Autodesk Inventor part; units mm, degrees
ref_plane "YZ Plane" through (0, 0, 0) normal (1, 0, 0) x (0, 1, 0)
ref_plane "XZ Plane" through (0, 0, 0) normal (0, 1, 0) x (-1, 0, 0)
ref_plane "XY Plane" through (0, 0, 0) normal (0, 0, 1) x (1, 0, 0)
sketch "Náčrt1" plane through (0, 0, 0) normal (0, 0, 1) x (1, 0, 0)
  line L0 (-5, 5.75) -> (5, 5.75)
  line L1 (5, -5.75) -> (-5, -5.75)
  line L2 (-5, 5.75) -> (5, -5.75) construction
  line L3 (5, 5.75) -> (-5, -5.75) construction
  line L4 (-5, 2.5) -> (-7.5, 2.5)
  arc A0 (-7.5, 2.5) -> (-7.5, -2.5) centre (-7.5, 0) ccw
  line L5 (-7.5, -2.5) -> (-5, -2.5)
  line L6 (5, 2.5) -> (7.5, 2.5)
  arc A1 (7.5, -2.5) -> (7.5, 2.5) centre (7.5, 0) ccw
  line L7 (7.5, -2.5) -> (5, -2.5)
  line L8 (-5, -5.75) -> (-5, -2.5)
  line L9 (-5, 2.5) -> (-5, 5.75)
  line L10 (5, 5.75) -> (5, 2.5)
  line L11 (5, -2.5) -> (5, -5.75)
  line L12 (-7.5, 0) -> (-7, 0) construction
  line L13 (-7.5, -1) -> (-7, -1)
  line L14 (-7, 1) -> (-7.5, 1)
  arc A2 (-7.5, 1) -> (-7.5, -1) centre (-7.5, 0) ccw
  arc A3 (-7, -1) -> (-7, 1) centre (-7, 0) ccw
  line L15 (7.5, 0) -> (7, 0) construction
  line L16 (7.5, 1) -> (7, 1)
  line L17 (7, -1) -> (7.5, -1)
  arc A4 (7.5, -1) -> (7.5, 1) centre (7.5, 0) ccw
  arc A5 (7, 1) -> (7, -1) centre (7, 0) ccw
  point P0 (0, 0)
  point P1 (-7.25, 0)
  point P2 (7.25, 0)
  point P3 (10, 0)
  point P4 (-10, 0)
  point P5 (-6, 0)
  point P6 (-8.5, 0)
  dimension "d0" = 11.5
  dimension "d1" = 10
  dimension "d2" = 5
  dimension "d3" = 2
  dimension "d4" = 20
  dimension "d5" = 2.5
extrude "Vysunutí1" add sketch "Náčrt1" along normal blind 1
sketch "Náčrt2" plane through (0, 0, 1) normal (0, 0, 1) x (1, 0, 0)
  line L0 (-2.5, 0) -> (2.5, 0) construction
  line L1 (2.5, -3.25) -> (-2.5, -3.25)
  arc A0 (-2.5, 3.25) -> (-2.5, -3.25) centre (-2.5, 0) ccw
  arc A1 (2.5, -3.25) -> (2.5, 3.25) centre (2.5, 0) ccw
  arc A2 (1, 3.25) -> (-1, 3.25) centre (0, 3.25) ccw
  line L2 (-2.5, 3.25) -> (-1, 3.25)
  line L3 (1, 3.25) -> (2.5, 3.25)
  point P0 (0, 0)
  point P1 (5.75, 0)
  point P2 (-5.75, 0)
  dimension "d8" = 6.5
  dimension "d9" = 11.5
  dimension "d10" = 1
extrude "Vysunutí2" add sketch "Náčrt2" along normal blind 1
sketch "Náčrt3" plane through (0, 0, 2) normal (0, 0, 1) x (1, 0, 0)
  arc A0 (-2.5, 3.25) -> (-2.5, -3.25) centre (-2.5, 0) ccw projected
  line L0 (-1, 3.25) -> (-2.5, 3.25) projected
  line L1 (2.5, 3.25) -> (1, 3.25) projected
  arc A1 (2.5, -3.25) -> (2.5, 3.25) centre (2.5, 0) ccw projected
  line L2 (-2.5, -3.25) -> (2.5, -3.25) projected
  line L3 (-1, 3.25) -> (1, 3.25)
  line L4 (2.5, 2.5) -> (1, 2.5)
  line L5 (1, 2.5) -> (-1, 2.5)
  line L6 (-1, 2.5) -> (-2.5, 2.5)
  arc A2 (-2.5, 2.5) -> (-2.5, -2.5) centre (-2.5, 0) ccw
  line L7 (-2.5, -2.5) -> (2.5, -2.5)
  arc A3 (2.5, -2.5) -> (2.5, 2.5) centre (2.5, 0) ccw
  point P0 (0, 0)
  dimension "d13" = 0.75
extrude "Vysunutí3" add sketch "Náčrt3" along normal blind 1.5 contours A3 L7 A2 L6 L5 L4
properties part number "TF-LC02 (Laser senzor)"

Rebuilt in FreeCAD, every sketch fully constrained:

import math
import FreeCAD as App
import Part
import Sketcher

V = App.Vector
Q = App.Units.Quantity

doc = App.newDocument("Part")
params = doc.addObject("Spreadsheet::Sheet", "Params")
for row, (alias, value) in enumerate([
    ("sketch1_radius", "1 mm"),
    ("sketch1_radius2", "2.5 mm"),
    ("sketch1_width", "10 mm"),
    ("sketch1_width2", "2.5 mm"),
    ("sketch1_height", "3.25 mm"),
    ("pad1_length", "1 mm"),
    ("sketch2_radius", "1 mm"),
    ("sketch2_radius2", "3.25 mm"),
    ("sketch2_width", "5 mm"),
    ("pad2_length", "1 mm"),
    ("sketch3_radius", "2.5 mm"),
    ("sketch3_width", "5 mm"),
    ("pad3_length", "1.5 mm"),
], start=1):
    params.set(f"A{row}", alias)
    params.set(f"B{row}", "=" + value)
    params.setAlias(f"B{row}", alias)

body = doc.addObject("PartDesign::Body", "Body")

sketch1 = body.newObject("Sketcher::SketchObject", "Sketch")
sketch1.AttachmentSupport = (doc.getObject("XY_Plane"), [""])
sketch1.MapMode = "FlatFace"
sketch1.addGeometry(Part.LineSegment(V(5, 5.75, 0), V(-5, 5.75, 0)), False)
sketch1.addGeometry(Part.LineSegment(V(-5, 5.75, 0), V(-5, 2.5, 0)), False)
sketch1.addGeometry(Part.LineSegment(V(-5, 2.5, 0), V(-7.5, 2.5, 0)), False)
sketch1.addGeometry(Part.ArcOfCircle(Part.Circle(V(-7.5, 0, 0), V(0, 0, 1), 2.5), math.radians(90), math.radians(270)), False)
sketch1.addGeometry(Part.LineSegment(V(-7.5, -2.5, 0), V(-5, -2.5, 0)), False)
sketch1.addGeometry(Part.LineSegment(V(-5, -2.5, 0), V(-5, -5.75, 0)), False)
sketch1.addGeometry(Part.LineSegment(V(-5, -5.75, 0), V(5, -5.75, 0)), False)
sketch1.addGeometry(Part.LineSegment(V(5, -5.75, 0), V(5, -2.5, 0)), False)
sketch1.addGeometry(Part.LineSegment(V(5, -2.5, 0), V(7.5, -2.5, 0)), False)
sketch1.addGeometry(Part.ArcOfCircle(Part.Circle(V(7.5, 0, 0), V(0, 0, 1), 2.5), math.radians(-90), math.radians(90)), False)
sketch1.addGeometry(Part.LineSegment(V(7.5, 2.5, 0), V(5, 2.5, 0)), False)
sketch1.addGeometry(Part.LineSegment(V(5, 2.5, 0), V(5, 5.75, 0)), False)
sketch1.addGeometry(Part.LineSegment(V(-7, -1, 0), V(-7.5, -1, 0)), False)
sketch1.addGeometry(Part.ArcOfCircle(Part.Circle(V(-7.5, 0, 0), V(0, 0, 1), 1), math.radians(90), math.radians(270)), False)
sketch1.addGeometry(Part.LineSegment(V(-7.5, 1, 0), V(-7, 1, 0)), False)
sketch1.addGeometry(Part.ArcOfCircle(Part.Circle(V(-7, 0, 0), V(0, 0, 1), 1), math.radians(-90), math.radians(90)), False)
sketch1.addGeometry(Part.LineSegment(V(7, 1, 0), V(7.5, 1, 0)), False)
sketch1.addGeometry(Part.ArcOfCircle(Part.Circle(V(7.5, 0, 0), V(0, 0, 1), 1), math.radians(-90), math.radians(90)), False)
sketch1.addGeometry(Part.LineSegment(V(7.5, -1, 0), V(7, -1, 0)), False)
sketch1.addGeometry(Part.ArcOfCircle(Part.Circle(V(7, 0, 0), V(0, 0, 1), 1), math.radians(90), math.radians(270)), False)
sketch1.addConstraint(Sketcher.Constraint("Coincident", 0, 2, 1, 1))
sketch1.addConstraint(Sketcher.Constraint("Coincident", 1, 2, 2, 1))
sketch1.addConstraint(Sketcher.Constraint("Tangent", 2, 2, 3, 1))
sketch1.addConstraint(Sketcher.Constraint("Tangent", 3, 2, 4, 1))
sketch1.addConstraint(Sketcher.Constraint("Coincident", 4, 2, 5, 1))
sketch1.addConstraint(Sketcher.Constraint("Coincident", 5, 2, 6, 1))
sketch1.addConstraint(Sketcher.Constraint("Coincident", 6, 2, 7, 1))
sketch1.addConstraint(Sketcher.Constraint("Coincident", 7, 2, 8, 1))
sketch1.addConstraint(Sketcher.Constraint("Tangent", 8, 2, 9, 1))
sketch1.addConstraint(Sketcher.Constraint("Tangent", 9, 2, 10, 1))
sketch1.addConstraint(Sketcher.Constraint("Coincident", 10, 2, 11, 1))
sketch1.addConstraint(Sketcher.Constraint("Coincident", 11, 2, 0, 1))
sketch1.addConstraint(Sketcher.Constraint("Tangent", 12, 2, 13, 2))
sketch1.addConstraint(Sketcher.Constraint("Tangent", 13, 1, 14, 1))
sketch1.addConstraint(Sketcher.Constraint("Tangent", 14, 2, 15, 2))
sketch1.addConstraint(Sketcher.Constraint("Tangent", 15, 1, 12, 1))
sketch1.addConstraint(Sketcher.Constraint("Tangent", 16, 2, 17, 2))
sketch1.addConstraint(Sketcher.Constraint("Tangent", 17, 1, 18, 1))
sketch1.addConstraint(Sketcher.Constraint("Tangent", 18, 2, 19, 2))
sketch1.addConstraint(Sketcher.Constraint("Tangent", 19, 1, 16, 1))
sketch1.addConstraint(Sketcher.Constraint("Horizontal", 0))
sketch1.addConstraint(Sketcher.Constraint("Vertical", 1))
sketch1.addConstraint(Sketcher.Constraint("Horizontal", 2))
sketch1.addConstraint(Sketcher.Constraint("Horizontal", 4))
sketch1.addConstraint(Sketcher.Constraint("Vertical", 5))
sketch1.addConstraint(Sketcher.Constraint("Horizontal", 6))
sketch1.addConstraint(Sketcher.Constraint("Vertical", 7))
sketch1.addConstraint(Sketcher.Constraint("Horizontal", 8))
sketch1.addConstraint(Sketcher.Constraint("Horizontal", 10))
sketch1.addConstraint(Sketcher.Constraint("Vertical", 11))
sketch1.addConstraint(Sketcher.Constraint("Horizontal", 12))
sketch1.addConstraint(Sketcher.Constraint("Horizontal", 14))
sketch1.addConstraint(Sketcher.Constraint("Horizontal", 16))
sketch1.addConstraint(Sketcher.Constraint("Horizontal", 18))
sketch1.addConstraint(Sketcher.Constraint("Coincident", 13, 3, 3, 3))
sketch1.addConstraint(Sketcher.Constraint("Coincident", 17, 3, 9, 3))
sketch1.addConstraint(Sketcher.Constraint("Equal", 3, 9))
sketch1.addConstraint(Sketcher.Constraint("Equal", 15, 17))
sketch1.addConstraint(Sketcher.Constraint("Symmetric", 3, 3, 9, 3, -1, 1))
sketch1.addConstraint(Sketcher.Constraint("Symmetric", 0, 2, 6, 2, -1, 1))
sketch1.addConstraint(Sketcher.Constraint("Symmetric", 15, 3, 19, 3, -2))
sketch1.addConstraint(Sketcher.Constraint("Vertical", 1, 2, 4, 2))
sketch1.addConstraint(Sketcher.Constraint("Vertical", 7, 2, 10, 2))
sketch1.addConstraint(Sketcher.Constraint("Radius", 13, Q("1 mm")))
sketch1.addConstraint(Sketcher.Constraint("Radius", 3, Q("2.5 mm")))
sketch1.addConstraint(Sketcher.Constraint("DistanceX", 0, 2, 0, 1, Q("10 mm")))
sketch1.addConstraint(Sketcher.Constraint("DistanceX", 2, 2, 2, 1, Q("2.5 mm")))
sketch1.addConstraint(Sketcher.Constraint("DistanceX", 15, 3, 0, 2, Q("2 mm")))
sketch1.addConstraint(Sketcher.Constraint("DistanceY", 1, 2, 1, 1, Q("3.25 mm")))
sketch1.setExpression("Constraints[43]", "Params.sketch1_radius")
sketch1.setExpression("Constraints[44]", "Params.sketch1_radius2")
sketch1.setExpression("Constraints[45]", "Params.sketch1_width")
sketch1.setExpression("Constraints[46]", "Params.sketch1_width2")
sketch1.setExpression("Constraints[48]", "Params.sketch1_height")
pad1 = body.newObject("PartDesign::Pad", "Pad")
pad1.Profile = sketch1
pad1.setExpression("Length", "Params.pad1_length")

sketch2 = body.newObject("Sketcher::SketchObject", "Sketch001")
sketch2.AttachmentSupport = (doc.getObject("XY_Plane"), [""])
sketch2.MapMode = "FlatFace"
sketch2.AttachmentOffset = App.Placement(V(0, 0, 1), App.Rotation())
sketch2.addGeometry(Part.LineSegment(V(-2.5, -3.25, 0), V(2.5, -3.25, 0)), False)
sketch2.addGeometry(Part.ArcOfCircle(Part.Circle(V(2.5, 0, 0), V(0, 0, 1), 3.25), math.radians(-90), math.radians(90)), False)
sketch2.addGeometry(Part.LineSegment(V(2.5, 3.25, 0), V(1, 3.25, 0)), False)
sketch2.addGeometry(Part.ArcOfCircle(Part.Circle(V(0, 3.25, 0), V(0, 0, 1), 1), math.radians(0), math.radians(180)), False)
sketch2.addGeometry(Part.LineSegment(V(-1, 3.25, 0), V(-2.5, 3.25, 0)), False)
sketch2.addGeometry(Part.ArcOfCircle(Part.Circle(V(-2.5, 0, 0), V(0, 0, 1), 3.25), math.radians(90), math.radians(270)), False)
sketch2.addConstraint(Sketcher.Constraint("Tangent", 0, 2, 1, 1))
sketch2.addConstraint(Sketcher.Constraint("Tangent", 1, 2, 2, 1))
sketch2.addConstraint(Sketcher.Constraint("Coincident", 2, 2, 3, 1))
sketch2.addConstraint(Sketcher.Constraint("Coincident", 3, 2, 4, 1))
sketch2.addConstraint(Sketcher.Constraint("Tangent", 4, 2, 5, 1))
sketch2.addConstraint(Sketcher.Constraint("Tangent", 5, 2, 0, 1))
sketch2.addConstraint(Sketcher.Constraint("Horizontal", 0))
sketch2.addConstraint(Sketcher.Constraint("Horizontal", 2))
sketch2.addConstraint(Sketcher.Constraint("Horizontal", 4))
sketch2.addConstraint(Sketcher.Constraint("Equal", 1, 5))
sketch2.addConstraint(Sketcher.Constraint("Symmetric", 1, 3, 5, 3, -1, 1))
sketch2.addConstraint(Sketcher.Constraint("PointOnObject", 3, 3, -2))
sketch2.addConstraint(Sketcher.Constraint("Horizontal", 3, 3, 1, 2))
sketch2.addConstraint(Sketcher.Constraint("Radius", 3, Q("1 mm")))
sketch2.addConstraint(Sketcher.Constraint("Radius", 1, Q("3.25 mm")))
sketch2.addConstraint(Sketcher.Constraint("DistanceX", 0, 1, 0, 2, Q("5 mm")))
sketch2.setExpression("Constraints[13]", "Params.sketch2_radius")
sketch2.setExpression("Constraints[14]", "Params.sketch2_radius2")
sketch2.setExpression("Constraints[15]", "Params.sketch2_width")
pad2 = body.newObject("PartDesign::Pad", "Pad001")
pad2.Profile = sketch2
pad2.setExpression("Length", "Params.pad2_length")

sketch3 = body.newObject("Sketcher::SketchObject", "Sketch002")
sketch3.AttachmentSupport = (doc.getObject("XY_Plane"), [""])
sketch3.MapMode = "FlatFace"
sketch3.AttachmentOffset = App.Placement(V(0, 0, 2), App.Rotation())
sketch3.addGeometry(Part.ArcOfCircle(Part.Circle(V(2.5, 0, 0), V(0, 0, 1), 2.5), math.radians(-90), math.radians(90)), False)
sketch3.addGeometry(Part.LineSegment(V(2.5, 2.5, 0), V(-2.5, 2.5, 0)), False)
sketch3.addGeometry(Part.ArcOfCircle(Part.Circle(V(-2.5, 0, 0), V(0, 0, 1), 2.5), math.radians(90), math.radians(270)), False)
sketch3.addGeometry(Part.LineSegment(V(-2.5, -2.5, 0), V(2.5, -2.5, 0)), False)
sketch3.addConstraint(Sketcher.Constraint("Tangent", 0, 2, 1, 1))
sketch3.addConstraint(Sketcher.Constraint("Tangent", 1, 2, 2, 1))
sketch3.addConstraint(Sketcher.Constraint("Tangent", 2, 2, 3, 1))
sketch3.addConstraint(Sketcher.Constraint("Tangent", 3, 2, 0, 1))
sketch3.addConstraint(Sketcher.Constraint("Horizontal", 1))
sketch3.addConstraint(Sketcher.Constraint("Horizontal", 3))
sketch3.addConstraint(Sketcher.Constraint("Symmetric", 0, 3, 2, 3, -1, 1))
sketch3.addConstraint(Sketcher.Constraint("Radius", 0, Q("2.5 mm")))
sketch3.addConstraint(Sketcher.Constraint("DistanceX", 1, 2, 1, 1, Q("5 mm")))
sketch3.setExpression("Constraints[7]", "Params.sketch3_radius")
sketch3.setExpression("Constraints[8]", "Params.sketch3_width")
pad3 = body.newObject("PartDesign::Pad", "Pad002")
pad3.Profile = sketch3
pad3.setExpression("Length", "Params.pad3_length")

doc.recompute()
